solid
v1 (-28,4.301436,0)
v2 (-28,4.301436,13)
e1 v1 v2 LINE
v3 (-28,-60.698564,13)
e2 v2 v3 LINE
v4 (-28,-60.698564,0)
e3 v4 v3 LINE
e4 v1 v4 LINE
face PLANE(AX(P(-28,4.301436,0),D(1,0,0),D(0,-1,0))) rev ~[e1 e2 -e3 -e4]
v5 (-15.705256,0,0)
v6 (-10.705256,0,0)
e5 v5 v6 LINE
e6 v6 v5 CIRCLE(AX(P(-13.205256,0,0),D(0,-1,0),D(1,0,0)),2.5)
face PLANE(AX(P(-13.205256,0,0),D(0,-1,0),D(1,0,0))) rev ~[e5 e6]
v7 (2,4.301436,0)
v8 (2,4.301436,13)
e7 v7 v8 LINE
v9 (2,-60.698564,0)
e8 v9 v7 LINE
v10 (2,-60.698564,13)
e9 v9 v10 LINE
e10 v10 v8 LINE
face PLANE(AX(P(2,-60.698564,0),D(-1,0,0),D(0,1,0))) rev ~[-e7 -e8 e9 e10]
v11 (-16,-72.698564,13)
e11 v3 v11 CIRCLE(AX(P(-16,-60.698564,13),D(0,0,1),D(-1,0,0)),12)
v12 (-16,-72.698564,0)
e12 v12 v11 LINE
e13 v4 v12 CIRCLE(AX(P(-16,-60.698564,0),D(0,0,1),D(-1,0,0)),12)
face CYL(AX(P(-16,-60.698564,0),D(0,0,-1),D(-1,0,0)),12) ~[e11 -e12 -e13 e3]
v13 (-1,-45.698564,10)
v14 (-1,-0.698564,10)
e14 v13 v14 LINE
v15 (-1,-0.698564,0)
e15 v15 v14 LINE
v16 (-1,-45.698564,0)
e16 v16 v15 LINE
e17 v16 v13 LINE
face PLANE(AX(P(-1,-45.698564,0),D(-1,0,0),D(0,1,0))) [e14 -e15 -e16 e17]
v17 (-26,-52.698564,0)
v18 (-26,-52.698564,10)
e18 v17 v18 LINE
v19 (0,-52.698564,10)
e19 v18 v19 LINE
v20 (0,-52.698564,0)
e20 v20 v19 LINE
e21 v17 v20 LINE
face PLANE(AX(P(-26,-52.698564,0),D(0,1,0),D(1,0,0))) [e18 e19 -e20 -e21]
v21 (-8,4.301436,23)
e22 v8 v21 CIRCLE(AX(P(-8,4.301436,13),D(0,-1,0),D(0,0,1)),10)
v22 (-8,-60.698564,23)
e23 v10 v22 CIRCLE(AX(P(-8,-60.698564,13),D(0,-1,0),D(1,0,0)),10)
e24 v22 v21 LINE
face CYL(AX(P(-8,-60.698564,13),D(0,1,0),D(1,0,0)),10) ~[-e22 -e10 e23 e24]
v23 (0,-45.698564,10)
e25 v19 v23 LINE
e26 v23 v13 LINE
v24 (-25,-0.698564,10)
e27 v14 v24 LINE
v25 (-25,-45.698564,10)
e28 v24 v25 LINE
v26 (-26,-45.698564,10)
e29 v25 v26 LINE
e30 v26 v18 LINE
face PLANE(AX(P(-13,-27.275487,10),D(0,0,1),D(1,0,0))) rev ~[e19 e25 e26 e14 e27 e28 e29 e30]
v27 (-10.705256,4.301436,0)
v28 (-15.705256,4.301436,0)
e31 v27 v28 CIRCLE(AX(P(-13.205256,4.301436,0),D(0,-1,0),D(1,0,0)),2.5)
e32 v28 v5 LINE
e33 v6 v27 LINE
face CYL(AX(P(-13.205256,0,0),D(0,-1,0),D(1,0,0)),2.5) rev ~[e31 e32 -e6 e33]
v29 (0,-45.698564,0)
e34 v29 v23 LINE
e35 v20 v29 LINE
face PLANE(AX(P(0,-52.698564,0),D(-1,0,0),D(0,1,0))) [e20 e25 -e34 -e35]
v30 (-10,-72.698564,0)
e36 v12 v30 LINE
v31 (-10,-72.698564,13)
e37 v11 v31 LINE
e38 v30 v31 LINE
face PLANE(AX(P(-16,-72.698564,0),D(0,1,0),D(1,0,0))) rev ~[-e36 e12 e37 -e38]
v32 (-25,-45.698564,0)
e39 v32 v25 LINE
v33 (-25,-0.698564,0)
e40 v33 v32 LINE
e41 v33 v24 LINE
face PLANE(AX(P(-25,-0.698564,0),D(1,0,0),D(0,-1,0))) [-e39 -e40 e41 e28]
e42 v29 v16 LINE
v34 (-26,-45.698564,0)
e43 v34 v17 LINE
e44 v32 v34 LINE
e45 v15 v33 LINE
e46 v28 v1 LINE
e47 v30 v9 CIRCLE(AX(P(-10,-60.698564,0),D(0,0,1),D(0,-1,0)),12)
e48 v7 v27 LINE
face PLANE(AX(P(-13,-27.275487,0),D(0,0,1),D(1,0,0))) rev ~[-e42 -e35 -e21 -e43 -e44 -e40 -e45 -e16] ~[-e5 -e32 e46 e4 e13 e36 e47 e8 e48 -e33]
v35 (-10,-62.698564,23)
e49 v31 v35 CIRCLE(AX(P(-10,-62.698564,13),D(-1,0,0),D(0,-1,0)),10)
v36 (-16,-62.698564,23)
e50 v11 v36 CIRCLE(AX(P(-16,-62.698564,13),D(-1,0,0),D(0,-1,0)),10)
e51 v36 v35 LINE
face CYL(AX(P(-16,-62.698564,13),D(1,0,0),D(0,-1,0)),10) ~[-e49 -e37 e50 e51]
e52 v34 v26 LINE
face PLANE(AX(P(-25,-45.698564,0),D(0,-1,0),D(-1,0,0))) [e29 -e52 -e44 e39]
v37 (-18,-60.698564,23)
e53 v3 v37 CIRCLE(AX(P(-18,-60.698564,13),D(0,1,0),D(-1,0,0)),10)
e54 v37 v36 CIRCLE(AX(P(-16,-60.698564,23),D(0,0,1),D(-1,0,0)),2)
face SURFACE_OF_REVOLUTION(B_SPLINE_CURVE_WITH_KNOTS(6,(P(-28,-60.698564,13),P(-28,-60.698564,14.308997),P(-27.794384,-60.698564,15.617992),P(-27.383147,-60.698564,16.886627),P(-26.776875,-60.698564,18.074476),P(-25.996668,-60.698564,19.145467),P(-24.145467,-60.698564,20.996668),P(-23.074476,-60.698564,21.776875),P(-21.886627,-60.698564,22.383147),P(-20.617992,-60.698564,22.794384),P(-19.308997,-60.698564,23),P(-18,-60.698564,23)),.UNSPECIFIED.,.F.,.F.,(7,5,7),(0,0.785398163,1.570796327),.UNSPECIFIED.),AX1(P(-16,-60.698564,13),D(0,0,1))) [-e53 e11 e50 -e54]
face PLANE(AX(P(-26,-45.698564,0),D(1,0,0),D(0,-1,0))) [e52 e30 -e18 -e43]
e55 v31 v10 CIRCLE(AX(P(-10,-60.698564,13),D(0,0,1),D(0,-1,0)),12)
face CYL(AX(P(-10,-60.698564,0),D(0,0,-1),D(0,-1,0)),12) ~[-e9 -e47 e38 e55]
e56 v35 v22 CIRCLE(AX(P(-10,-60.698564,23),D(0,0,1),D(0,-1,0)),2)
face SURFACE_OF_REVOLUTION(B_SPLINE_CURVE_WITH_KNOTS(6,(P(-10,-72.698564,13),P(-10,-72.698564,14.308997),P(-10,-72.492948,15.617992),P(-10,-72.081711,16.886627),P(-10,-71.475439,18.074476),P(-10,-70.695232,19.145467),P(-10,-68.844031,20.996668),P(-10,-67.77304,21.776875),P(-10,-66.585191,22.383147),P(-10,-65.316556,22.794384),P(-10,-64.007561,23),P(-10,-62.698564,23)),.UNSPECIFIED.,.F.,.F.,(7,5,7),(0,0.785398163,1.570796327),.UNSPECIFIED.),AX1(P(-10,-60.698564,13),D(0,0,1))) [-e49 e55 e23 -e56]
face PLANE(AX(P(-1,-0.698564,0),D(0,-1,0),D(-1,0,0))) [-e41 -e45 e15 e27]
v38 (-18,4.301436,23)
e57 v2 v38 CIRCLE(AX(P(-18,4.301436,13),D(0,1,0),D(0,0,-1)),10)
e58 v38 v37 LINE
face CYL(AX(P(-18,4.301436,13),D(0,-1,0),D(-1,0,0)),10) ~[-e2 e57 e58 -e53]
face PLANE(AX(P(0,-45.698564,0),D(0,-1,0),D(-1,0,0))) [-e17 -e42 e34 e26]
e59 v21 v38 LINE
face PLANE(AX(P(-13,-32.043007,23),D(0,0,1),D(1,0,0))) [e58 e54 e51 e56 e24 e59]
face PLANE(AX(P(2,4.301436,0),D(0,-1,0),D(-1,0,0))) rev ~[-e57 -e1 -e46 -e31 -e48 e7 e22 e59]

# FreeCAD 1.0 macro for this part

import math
import FreeCAD as App
import Part
import Sketcher
Q = App.Units.Quantity


def edges_at(feature, points):
    """Names of the edges that pass closest to the given points."""
    edges = feature.Shape.Edges
    near = lambda p: min(range(len(edges)), key=lambda i: edges[i].distToShape(Part.Vertex(*p))[0])
    return sorted({f"Edge{near(p) + 1}" for p in points})

doc = App.newDocument("Part")
body = doc.addObject("PartDesign::Body", "Body")

sketch1 = doc.addObject("Sketcher::SketchObject", "Sketch")
body.addObject(sketch1)
sketch1.AttachmentSupport = (doc.XY_Plane, [""])
sketch1.MapMode = "FlatFace"
sketch1.addGeometry(Part.ArcOfCircle(Part.Circle(App.Vector(-10, -60.7, 0), App.Vector(0, 0, 1), 12), math.radians(-90), math.radians(0)), False)
sketch1.addGeometry(Part.LineSegment(App.Vector(2, -60.7, 0), App.Vector(2, 4.3, 0)), False)
sketch1.addGeometry(Part.LineSegment(App.Vector(2, 4.3, 0), App.Vector(-28, 4.3, 0)), False)
sketch1.addGeometry(Part.LineSegment(App.Vector(-28, 4.3, 0), App.Vector(-28, -60.7, 0)), False)
sketch1.addGeometry(Part.ArcOfCircle(Part.Circle(App.Vector(-16, -60.7, 0), App.Vector(0, 0, 1), 12), math.radians(-180), math.radians(-90)), False)
sketch1.addGeometry(Part.LineSegment(App.Vector(-16, -72.7, 0), App.Vector(-10, -72.7, 0)), False)
sketch1.addGeometry(Part.LineSegment(App.Vector(-26, -45.7, 0), App.Vector(-25, -45.7, 0)), False)
sketch1.addGeometry(Part.LineSegment(App.Vector(-25, -45.7, 0), App.Vector(-25, -0.7, 0)), False)
sketch1.addGeometry(Part.LineSegment(App.Vector(-25, -0.7, 0), App.Vector(-1, -0.7, 0)), False)
sketch1.addGeometry(Part.LineSegment(App.Vector(-1, -0.7, 0), App.Vector(-1, -45.7, 0)), False)
sketch1.addGeometry(Part.LineSegment(App.Vector(-1, -45.7, 0), App.Vector(0, -45.7, 0)), False)
sketch1.addGeometry(Part.LineSegment(App.Vector(0, -45.7, 0), App.Vector(0, -52.7, 0)), False)
sketch1.addGeometry(Part.LineSegment(App.Vector(0, -52.7, 0), App.Vector(-26, -52.7, 0)), False)
sketch1.addGeometry(Part.LineSegment(App.Vector(-26, -52.7, 0), App.Vector(-26, -45.7, 0)), False)
sketch1.addConstraint(Sketcher.Constraint("Tangent", 0, 2, 1, 1))
sketch1.addConstraint(Sketcher.Constraint("Coincident", 1, 2, 2, 1))
sketch1.addConstraint(Sketcher.Constraint("Coincident", 2, 2, 3, 1))
sketch1.addConstraint(Sketcher.Constraint("Tangent", 3, 2, 4, 1))
sketch1.addConstraint(Sketcher.Constraint("Tangent", 4, 2, 5, 1))
sketch1.addConstraint(Sketcher.Constraint("Tangent", 5, 2, 0, 1))
sketch1.addConstraint(Sketcher.Constraint("Coincident", 6, 2, 7, 1))
sketch1.addConstraint(Sketcher.Constraint("Coincident", 7, 2, 8, 1))
sketch1.addConstraint(Sketcher.Constraint("Coincident", 8, 2, 9, 1))
sketch1.addConstraint(Sketcher.Constraint("Coincident", 9, 2, 10, 1))
sketch1.addConstraint(Sketcher.Constraint("Coincident", 10, 2, 11, 1))
sketch1.addConstraint(Sketcher.Constraint("Coincident", 11, 2, 12, 1))
sketch1.addConstraint(Sketcher.Constraint("Coincident", 12, 2, 13, 1))
sketch1.addConstraint(Sketcher.Constraint("Coincident", 13, 2, 6, 1))
sketch1.addConstraint(Sketcher.Constraint("Vertical", 1))
sketch1.addConstraint(Sketcher.Constraint("Horizontal", 2))
sketch1.addConstraint(Sketcher.Constraint("Vertical", 3))
sketch1.addConstraint(Sketcher.Constraint("Horizontal", 5))
sketch1.addConstraint(Sketcher.Constraint("Horizontal", 6))
sketch1.addConstraint(Sketcher.Constraint("Vertical", 7))
sketch1.addConstraint(Sketcher.Constraint("Horizontal", 8))
sketch1.addConstraint(Sketcher.Constraint("Vertical", 9))
sketch1.addConstraint(Sketcher.Constraint("Horizontal", 10))
sketch1.addConstraint(Sketcher.Constraint("Vertical", 11))
sketch1.addConstraint(Sketcher.Constraint("Horizontal", 12))
sketch1.addConstraint(Sketcher.Constraint("Vertical", 13))
sketch1.addConstraint(Sketcher.Constraint("Equal", 0, 4))
sketch1.addConstraint(Sketcher.Constraint("PointOnObject", 10, 2, -2))
sketch1.addConstraint(Sketcher.Constraint("Horizontal", 6, 2, 9, 2))
sketch1.addConstraint(Sketcher.Constraint("Equal", 6, 10))
sketch1.addConstraint(Sketcher.Constraint("Radius", 0, Q("12 mm")))
sketch1.addConstraint(Sketcher.Constraint("DistanceX", 2, 2, 2, 1, Q("30 mm")))
sketch1.addConstraint(Sketcher.Constraint("DistanceX", 6, 1, 6, 2, Q("1 mm")))
sketch1.addConstraint(Sketcher.Constraint("DistanceX", 8, 1, 8, 2, Q("24 mm")))
sketch1.addConstraint(Sketcher.Constraint("DistanceY", 1, 1, 1, 2, Q("65 mm")))
sketch1.addConstraint(Sketcher.Constraint("DistanceY", 7, 1, 7, 2, Q("45 mm")))
sketch1.addConstraint(Sketcher.Constraint("DistanceY", 11, 2, 11, 1, Q("7 mm")))
sketch1.addConstraint(Sketcher.Constraint("DistanceX", 0, 3, -1, 1, Q("10 mm")))
sketch1.addConstraint(Sketcher.Constraint("DistanceY", 3, 2, 6, 2, Q("15 mm")))
sketch1.addConstraint(Sketcher.Constraint("DistanceY", 0, 3, -1, 1, Q("60.698564 mm")))
pad1 = doc.addObject("PartDesign::Pad", "Pad")
body.addObject(pad1)
pad1.Profile = sketch1
pad1.Length = 23

sketch2 = doc.addObject("Sketcher::SketchObject", "Sketch001")
body.addObject(sketch2)
sketch2.AttachmentSupport = (doc.XY_Plane, [""])
sketch2.MapMode = "FlatFace"
sketch2.addGeometry(Part.LineSegment(App.Vector(-1, -0.7, 0), App.Vector(-25, -0.7, 0)), False)
sketch2.addGeometry(Part.LineSegment(App.Vector(-25, -0.7, 0), App.Vector(-25, -45.7, 0)), False)
sketch2.addGeometry(Part.LineSegment(App.Vector(-25, -45.7, 0), App.Vector(-26, -45.7, 0)), False)
sketch2.addGeometry(Part.LineSegment(App.Vector(-26, -45.7, 0), App.Vector(-26, -52.7, 0)), False)
sketch2.addGeometry(Part.LineSegment(App.Vector(-26, -52.7, 0), App.Vector(0, -52.7, 0)), False)
sketch2.addGeometry(Part.LineSegment(App.Vector(0, -52.7, 0), App.Vector(0, -45.7, 0)), False)
sketch2.addGeometry(Part.LineSegment(App.Vector(0, -45.7, 0), App.Vector(-1, -45.7, 0)), False)
sketch2.addGeometry(Part.LineSegment(App.Vector(-1, -45.7, 0), App.Vector(-1, -0.7, 0)), False)
sketch2.addConstraint(Sketcher.Constraint("Coincident", 0, 2, 1, 1))
sketch2.addConstraint(Sketcher.Constraint("Coincident", 1, 2, 2, 1))
sketch2.addConstraint(Sketcher.Constraint("Coincident", 2, 2, 3, 1))
sketch2.addConstraint(Sketcher.Constraint("Coincident", 3, 2, 4, 1))
sketch2.addConstraint(Sketcher.Constraint("Coincident", 4, 2, 5, 1))
sketch2.addConstraint(Sketcher.Constraint("Coincident", 5, 2, 6, 1))
sketch2.addConstraint(Sketcher.Constraint("Coincident", 6, 2, 7, 1))
sketch2.addConstraint(Sketcher.Constraint("Coincident", 7, 2, 0, 1))
sketch2.addConstraint(Sketcher.Constraint("Horizontal", 0))
sketch2.addConstraint(Sketcher.Constraint("Vertical", 1))
sketch2.addConstraint(Sketcher.Constraint("Horizontal", 2))
sketch2.addConstraint(Sketcher.Constraint("Vertical", 3))
sketch2.addConstraint(Sketcher.Constraint("Horizontal", 4))
sketch2.addConstraint(Sketcher.Constraint("Vertical", 5))
sketch2.addConstraint(Sketcher.Constraint("Horizontal", 6))
sketch2.addConstraint(Sketcher.Constraint("Vertical", 7))
sketch2.addConstraint(Sketcher.Constraint("PointOnObject", 4, 2, -2))
sketch2.addConstraint(Sketcher.Constraint("Horizontal", 2, 2, 5, 2))
sketch2.addConstraint(Sketcher.Constraint("Equal", 2, 6))
sketch2.addConstraint(Sketcher.Constraint("DistanceX", 0, 2, 0, 1, Q("24 mm")))
sketch2.addConstraint(Sketcher.Constraint("DistanceX", 2, 2, 2, 1, Q("1 mm")))
sketch2.addConstraint(Sketcher.Constraint("DistanceY", 1, 2, 1, 1, Q("45 mm")))
sketch2.addConstraint(Sketcher.Constraint("DistanceY", 3, 2, 3, 1, Q("7 mm")))
sketch2.addConstraint(Sketcher.Constraint("DistanceY", 0, 2, -1, 1, Q("0.698564 mm")))
pad2 = doc.addObject("PartDesign::Pad", "Pad001")
body.addObject(pad2)
pad2.Profile = sketch2
pad2.Length = 23

sketch3 = doc.addObject("Sketcher::SketchObject", "Sketch002")
body.addObject(sketch3)
sketch3.AttachmentSupport = (doc.XY_Plane, [""])
sketch3.MapMode = "FlatFace"
sketch3.addGeometry(Part.LineSegment(App.Vector(-1, -0.7, 0), App.Vector(-25, -0.7, 0)), False)
sketch3.addGeometry(Part.LineSegment(App.Vector(-25, -0.7, 0), App.Vector(-25, -45.7, 0)), False)
sketch3.addGeometry(Part.LineSegment(App.Vector(-25, -45.7, 0), App.Vector(-26, -45.7, 0)), False)
sketch3.addGeometry(Part.LineSegment(App.Vector(-26, -45.7, 0), App.Vector(-26, -52.7, 0)), False)
sketch3.addGeometry(Part.LineSegment(App.Vector(-26, -52.7, 0), App.Vector(0, -52.7, 0)), False)
sketch3.addGeometry(Part.LineSegment(App.Vector(0, -52.7, 0), App.Vector(0, -45.7, 0)), False)
sketch3.addGeometry(Part.LineSegment(App.Vector(0, -45.7, 0), App.Vector(-1, -45.7, 0)), False)
sketch3.addGeometry(Part.LineSegment(App.Vector(-1, -45.7, 0), App.Vector(-1, -0.7, 0)), False)
sketch3.addConstraint(Sketcher.Constraint("Coincident", 0, 2, 1, 1))
sketch3.addConstraint(Sketcher.Constraint("Coincident", 1, 2, 2, 1))
sketch3.addConstraint(Sketcher.Constraint("Coincident", 2, 2, 3, 1))
sketch3.addConstraint(Sketcher.Constraint("Coincident", 3, 2, 4, 1))
sketch3.addConstraint(Sketcher.Constraint("Coincident", 4, 2, 5, 1))
sketch3.addConstraint(Sketcher.Constraint("Coincident", 5, 2, 6, 1))
sketch3.addConstraint(Sketcher.Constraint("Coincident", 6, 2, 7, 1))
sketch3.addConstraint(Sketcher.Constraint("Coincident", 7, 2, 0, 1))
sketch3.addConstraint(Sketcher.Constraint("Horizontal", 0))
sketch3.addConstraint(Sketcher.Constraint("Vertical", 1))
sketch3.addConstraint(Sketcher.Constraint("Horizontal", 2))
sketch3.addConstraint(Sketcher.Constraint("Vertical", 3))
sketch3.addConstraint(Sketcher.Constraint("Horizontal", 4))
sketch3.addConstraint(Sketcher.Constraint("Vertical", 5))
sketch3.addConstraint(Sketcher.Constraint("Horizontal", 6))
sketch3.addConstraint(Sketcher.Constraint("Vertical", 7))
sketch3.addConstraint(Sketcher.Constraint("PointOnObject", 4, 2, -2))
sketch3.addConstraint(Sketcher.Constraint("Horizontal", 2, 2, 5, 2))
sketch3.addConstraint(Sketcher.Constraint("Equal", 2, 6))
sketch3.addConstraint(Sketcher.Constraint("DistanceX", 0, 2, 0, 1, Q("24 mm")))
sketch3.addConstraint(Sketcher.Constraint("DistanceX", 2, 2, 2, 1, Q("1 mm")))
sketch3.addConstraint(Sketcher.Constraint("DistanceY", 1, 2, 1, 1, Q("45 mm")))
sketch3.addConstraint(Sketcher.Constraint("DistanceY", 3, 2, 3, 1, Q("7 mm")))
sketch3.addConstraint(Sketcher.Constraint("DistanceY", 0, 2, -1, 1, Q("0.698564 mm")))
pocket1 = doc.addObject("PartDesign::Pocket", "Pocket")
body.addObject(pocket1)
pocket1.Profile = sketch3
pocket1.Length = 10
pocket1.Reversed = True
doc.recompute()

fillet = doc.addObject("PartDesign::Fillet", "Fillet")
body.addObject(fillet)
fillet.Base = (pocket1, edges_at(pocket1, [(-28, -28.199, 23)]))
fillet.Radius = 10

sketch4 = doc.addObject("Sketcher::SketchObject", "Sketch003")
body.addObject(sketch4)
sketch4.AttachmentSupport = (doc.XZ_Plane, [""])
sketch4.MapMode = "FlatFace"
sketch4.addGeometry(Part.Circle(App.Vector(-13.2, 0, 0), App.Vector(0, 0, 1), 2.5), False)
sketch4.addConstraint(Sketcher.Constraint("PointOnObject", 0, 3, -1))
sketch4.addConstraint(Sketcher.Constraint("Diameter", 0, Q("5 mm")))
sketch4.addConstraint(Sketcher.Constraint("DistanceX", 0, 3, -1, 1, Q("13.205256 mm")))
pocket2 = doc.addObject("PartDesign::Pocket", "Pocket001")
body.addObject(pocket2)
pocket2.Profile = sketch4
pocket2.Type = "ThroughAll"

doc.recompute()
